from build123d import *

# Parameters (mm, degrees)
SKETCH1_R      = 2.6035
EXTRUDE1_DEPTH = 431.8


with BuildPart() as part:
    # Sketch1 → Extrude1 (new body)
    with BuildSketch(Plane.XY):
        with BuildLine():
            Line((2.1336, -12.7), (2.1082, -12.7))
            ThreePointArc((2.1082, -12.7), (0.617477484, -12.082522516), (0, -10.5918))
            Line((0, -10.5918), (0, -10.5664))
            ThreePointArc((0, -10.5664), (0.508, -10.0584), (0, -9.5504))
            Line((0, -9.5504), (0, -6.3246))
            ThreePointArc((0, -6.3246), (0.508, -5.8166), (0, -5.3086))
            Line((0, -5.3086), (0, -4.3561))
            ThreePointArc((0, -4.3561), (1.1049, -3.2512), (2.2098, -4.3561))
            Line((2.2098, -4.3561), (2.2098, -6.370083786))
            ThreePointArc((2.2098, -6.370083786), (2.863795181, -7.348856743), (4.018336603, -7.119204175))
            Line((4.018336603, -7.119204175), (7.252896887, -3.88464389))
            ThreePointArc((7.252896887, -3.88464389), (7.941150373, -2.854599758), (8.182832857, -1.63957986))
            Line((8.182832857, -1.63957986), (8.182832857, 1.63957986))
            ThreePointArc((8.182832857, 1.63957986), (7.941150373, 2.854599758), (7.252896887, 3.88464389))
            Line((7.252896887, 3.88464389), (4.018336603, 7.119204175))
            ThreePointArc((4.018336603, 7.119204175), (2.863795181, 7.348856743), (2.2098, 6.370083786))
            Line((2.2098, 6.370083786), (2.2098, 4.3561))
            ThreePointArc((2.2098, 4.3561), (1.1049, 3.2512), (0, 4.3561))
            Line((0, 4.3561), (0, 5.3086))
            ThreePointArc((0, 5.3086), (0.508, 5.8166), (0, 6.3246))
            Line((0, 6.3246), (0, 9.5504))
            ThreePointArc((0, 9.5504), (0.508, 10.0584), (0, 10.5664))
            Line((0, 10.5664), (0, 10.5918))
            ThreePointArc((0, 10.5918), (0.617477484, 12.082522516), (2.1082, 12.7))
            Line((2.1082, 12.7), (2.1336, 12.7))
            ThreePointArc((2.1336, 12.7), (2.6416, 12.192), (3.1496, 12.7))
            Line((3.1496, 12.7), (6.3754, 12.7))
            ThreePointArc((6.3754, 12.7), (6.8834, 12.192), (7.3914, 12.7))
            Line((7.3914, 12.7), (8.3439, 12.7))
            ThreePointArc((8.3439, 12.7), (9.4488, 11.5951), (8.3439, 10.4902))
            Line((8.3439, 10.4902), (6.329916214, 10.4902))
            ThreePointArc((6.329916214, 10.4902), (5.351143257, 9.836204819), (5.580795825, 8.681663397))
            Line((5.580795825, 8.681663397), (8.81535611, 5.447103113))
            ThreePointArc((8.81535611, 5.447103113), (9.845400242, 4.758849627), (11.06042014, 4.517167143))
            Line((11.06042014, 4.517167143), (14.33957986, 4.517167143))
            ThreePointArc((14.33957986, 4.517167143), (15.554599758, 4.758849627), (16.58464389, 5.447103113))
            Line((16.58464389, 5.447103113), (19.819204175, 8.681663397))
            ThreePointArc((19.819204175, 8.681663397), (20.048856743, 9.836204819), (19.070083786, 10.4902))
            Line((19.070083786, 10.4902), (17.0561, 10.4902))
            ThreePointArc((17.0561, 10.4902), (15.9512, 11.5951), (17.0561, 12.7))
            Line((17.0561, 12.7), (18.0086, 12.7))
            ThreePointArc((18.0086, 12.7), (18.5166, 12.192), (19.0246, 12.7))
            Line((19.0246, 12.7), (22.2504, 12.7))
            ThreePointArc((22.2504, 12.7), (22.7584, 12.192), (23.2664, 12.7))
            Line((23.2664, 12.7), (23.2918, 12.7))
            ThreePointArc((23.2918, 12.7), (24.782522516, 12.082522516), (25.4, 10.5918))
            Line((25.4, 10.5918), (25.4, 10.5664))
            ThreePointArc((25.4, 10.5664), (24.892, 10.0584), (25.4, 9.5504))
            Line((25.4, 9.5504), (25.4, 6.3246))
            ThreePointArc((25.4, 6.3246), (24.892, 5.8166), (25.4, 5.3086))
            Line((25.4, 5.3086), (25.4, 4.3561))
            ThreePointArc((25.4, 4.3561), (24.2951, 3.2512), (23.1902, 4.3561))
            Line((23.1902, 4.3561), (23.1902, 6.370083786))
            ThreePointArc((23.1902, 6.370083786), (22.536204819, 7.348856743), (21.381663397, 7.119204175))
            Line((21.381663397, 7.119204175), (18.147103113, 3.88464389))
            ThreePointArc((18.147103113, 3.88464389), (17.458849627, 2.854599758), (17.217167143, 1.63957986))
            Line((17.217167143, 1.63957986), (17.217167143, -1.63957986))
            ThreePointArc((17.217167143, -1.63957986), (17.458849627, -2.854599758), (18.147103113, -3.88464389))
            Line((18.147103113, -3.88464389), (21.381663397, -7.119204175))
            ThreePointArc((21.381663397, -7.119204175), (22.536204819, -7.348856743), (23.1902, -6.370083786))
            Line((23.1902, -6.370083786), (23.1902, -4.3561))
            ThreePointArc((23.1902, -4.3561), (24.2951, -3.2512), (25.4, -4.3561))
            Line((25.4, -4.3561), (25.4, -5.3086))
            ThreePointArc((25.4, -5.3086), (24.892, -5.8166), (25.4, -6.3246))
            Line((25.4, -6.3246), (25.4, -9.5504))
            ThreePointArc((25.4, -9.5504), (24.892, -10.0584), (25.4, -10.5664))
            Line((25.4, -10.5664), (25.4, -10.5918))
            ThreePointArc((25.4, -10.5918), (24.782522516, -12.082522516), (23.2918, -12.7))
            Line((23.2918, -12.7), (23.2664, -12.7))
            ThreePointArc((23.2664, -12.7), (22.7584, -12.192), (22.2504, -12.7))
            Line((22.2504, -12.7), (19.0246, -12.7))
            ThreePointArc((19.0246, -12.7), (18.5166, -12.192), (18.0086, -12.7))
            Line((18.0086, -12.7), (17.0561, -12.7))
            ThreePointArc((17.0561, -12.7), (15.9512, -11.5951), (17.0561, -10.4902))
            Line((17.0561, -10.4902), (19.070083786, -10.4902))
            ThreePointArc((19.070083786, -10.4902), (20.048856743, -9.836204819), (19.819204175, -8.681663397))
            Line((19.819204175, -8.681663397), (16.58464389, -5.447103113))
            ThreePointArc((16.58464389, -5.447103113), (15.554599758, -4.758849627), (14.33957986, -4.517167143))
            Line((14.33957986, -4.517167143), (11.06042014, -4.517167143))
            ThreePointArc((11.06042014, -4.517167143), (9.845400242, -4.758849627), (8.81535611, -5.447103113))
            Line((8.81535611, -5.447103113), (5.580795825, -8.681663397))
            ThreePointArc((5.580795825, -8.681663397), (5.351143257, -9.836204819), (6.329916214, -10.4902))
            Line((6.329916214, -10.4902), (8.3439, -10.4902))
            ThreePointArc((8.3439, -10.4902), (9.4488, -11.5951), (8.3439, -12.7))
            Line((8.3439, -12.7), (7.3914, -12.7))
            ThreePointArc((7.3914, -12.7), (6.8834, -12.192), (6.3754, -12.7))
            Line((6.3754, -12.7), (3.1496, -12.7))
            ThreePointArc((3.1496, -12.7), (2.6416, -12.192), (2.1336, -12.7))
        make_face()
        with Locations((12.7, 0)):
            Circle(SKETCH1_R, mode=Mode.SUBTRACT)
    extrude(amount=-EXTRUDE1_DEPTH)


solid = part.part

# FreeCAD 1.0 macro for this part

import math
import FreeCAD as App
import Part
import Sketcher
from FreeCAD import Vector
Q = App.Units.Quantity

doc = App.newDocument("Part")
body = doc.addObject("PartDesign::Body", "Body")

# Sketch on XY plane
sketch1 = body.newObject("Sketcher::SketchObject", "Sketch")
sketch1.AttachmentSupport = (doc.getObject("XY_Plane"), [""])
sketch1.MapMode = "FlatFace"
sketch1.addGeometry([
    Part.LineSegment(Vector(2.108, -12.7, 0), Vector(2.134, -12.7, 0)),  # 0
    Part.ArcOfCircle(Part.Circle(Vector(2.642, -12.7, 0), Vector(0, 0, 1), 0.508), math.radians(0), math.radians(180)),  # 1
    Part.LineSegment(Vector(3.15, -12.7, 0), Vector(6.375, -12.7, 0)),  # 2
    Part.ArcOfCircle(Part.Circle(Vector(6.883, -12.7, 0), Vector(0, 0, 1), 0.508), math.radians(0), math.radians(180)),  # 3
    Part.LineSegment(Vector(7.391, -12.7, 0), Vector(8.344, -12.7, 0)),  # 4
    Part.ArcOfCircle(Part.Circle(Vector(8.344, -11.595, 0), Vector(0, 0, 1), 1.105), math.radians(-90), math.radians(90)),  # 5
    Part.LineSegment(Vector(8.344, -10.49, 0), Vector(6.33, -10.49, 0)),  # 6
    Part.ArcOfCircle(Part.Circle(Vector(6.33, -9.431, 0), Vector(0, 0, 1), 1.059), math.radians(135), math.radians(270)),  # 7
    Part.LineSegment(Vector(5.581, -8.682, 0), Vector(8.815, -5.447, 0)),  # 8
    Part.ArcOfCircle(Part.Circle(Vector(11.06, -7.692, 0), Vector(0, 0, 1), 3.175), math.radians(90), math.radians(135)),  # 9
    Part.LineSegment(Vector(11.06, -4.517, 0), Vector(14.34, -4.517, 0)),  # 10
    Part.ArcOfCircle(Part.Circle(Vector(14.34, -7.692, 0), Vector(0, 0, 1), 3.175), math.radians(45), math.radians(90)),  # 11
    Part.LineSegment(Vector(16.585, -5.447, 0), Vector(19.819, -8.682, 0)),  # 12
    Part.ArcOfCircle(Part.Circle(Vector(19.07, -9.431, 0), Vector(0, 0, 1), 1.059), math.radians(-90), math.radians(45)),  # 13
    Part.LineSegment(Vector(19.07, -10.49, 0), Vector(17.056, -10.49, 0)),  # 14
    Part.ArcOfCircle(Part.Circle(Vector(17.056, -11.595, 0), Vector(0, 0, 1), 1.105), math.radians(90), math.radians(270)),  # 15
    Part.LineSegment(Vector(17.056, -12.7, 0), Vector(18.009, -12.7, 0)),  # 16
    Part.ArcOfCircle(Part.Circle(Vector(18.517, -12.7, 0), Vector(0, 0, 1), 0.508), math.radians(0), math.radians(180)),  # 17
    Part.LineSegment(Vector(19.025, -12.7, 0), Vector(22.25, -12.7, 0)),  # 18
    Part.ArcOfCircle(Part.Circle(Vector(22.758, -12.7, 0), Vector(0, 0, 1), 0.508), math.radians(0), math.radians(180)),  # 19
    Part.LineSegment(Vector(23.266, -12.7, 0), Vector(23.292, -12.7, 0)),  # 20
    Part.ArcOfCircle(Part.Circle(Vector(23.292, -10.592, 0), Vector(0, 0, 1), 2.108), math.radians(-90), math.radians(0)),  # 21
    Part.LineSegment(Vector(25.4, -10.592, 0), Vector(25.4, -10.566, 0)),  # 22
    Part.ArcOfCircle(Part.Circle(Vector(25.4, -10.058, 0), Vector(0, 0, 1), 0.508), math.radians(90), math.radians(270)),  # 23
    Part.LineSegment(Vector(25.4, -9.55, 0), Vector(25.4, -6.325, 0)),  # 24
    Part.ArcOfCircle(Part.Circle(Vector(25.4, -5.817, 0), Vector(0, 0, 1), 0.508), math.radians(90), math.radians(270)),  # 25
    Part.LineSegment(Vector(25.4, -5.309, 0), Vector(25.4, -4.356, 0)),  # 26
    Part.ArcOfCircle(Part.Circle(Vector(24.295, -4.356, 0), Vector(0, 0, 1), 1.105), math.radians(0), math.radians(180)),  # 27
    Part.LineSegment(Vector(23.19, -4.356, 0), Vector(23.19, -6.37, 0)),  # 28
    Part.ArcOfCircle(Part.Circle(Vector(22.131, -6.37, 0), Vector(0, 0, 1), 1.059), math.radians(-135), math.radians(0)),  # 29
    Part.LineSegment(Vector(21.382, -7.119, 0), Vector(18.147, -3.885, 0)),  # 30
    Part.ArcOfCircle(Part.Circle(Vector(20.392, -1.64, 0), Vector(0, 0, 1), 3.175), math.radians(180), math.radians(225)),  # 31
    Part.LineSegment(Vector(17.217, -1.64, 0), Vector(17.217, 1.64, 0)),  # 32
    Part.ArcOfCircle(Part.Circle(Vector(20.392, 1.64, 0), Vector(0, 0, 1), 3.175), math.radians(135), math.radians(180)),  # 33
    Part.LineSegment(Vector(18.147, 3.885, 0), Vector(21.382, 7.119, 0)),  # 34
    Part.ArcOfCircle(Part.Circle(Vector(22.131, 6.37, 0), Vector(0, 0, 1), 1.059), math.radians(0), math.radians(135)),  # 35
    Part.LineSegment(Vector(23.19, 6.37, 0), Vector(23.19, 4.356, 0)),  # 36
    Part.ArcOfCircle(Part.Circle(Vector(24.295, 4.356, 0), Vector(0, 0, 1), 1.105), math.radians(180), math.radians(360)),  # 37
    Part.LineSegment(Vector(25.4, 4.356, 0), Vector(25.4, 5.309, 0)),  # 38
    Part.ArcOfCircle(Part.Circle(Vector(25.4, 5.817, 0), Vector(0, 0, 1), 0.508), math.radians(90), math.radians(270)),  # 39
    Part.LineSegment(Vector(25.4, 6.325, 0), Vector(25.4, 9.55, 0)),  # 40
    Part.ArcOfCircle(Part.Circle(Vector(25.4, 10.058, 0), Vector(0, 0, 1), 0.508), math.radians(90), math.radians(270)),  # 41
    Part.LineSegment(Vector(25.4, 10.566, 0), Vector(25.4, 10.592, 0)),  # 42
    Part.ArcOfCircle(Part.Circle(Vector(23.292, 10.592, 0), Vector(0, 0, 1), 2.108), math.radians(0), math.radians(90)),  # 43
    Part.LineSegment(Vector(23.292, 12.7, 0), Vector(23.266, 12.7, 0)),  # 44
    Part.ArcOfCircle(Part.Circle(Vector(22.758, 12.7, 0), Vector(0, 0, 1), 0.508), math.radians(180), math.radians(360)),  # 45
    Part.LineSegment(Vector(22.25, 12.7, 0), Vector(19.025, 12.7, 0)),  # 46
    Part.ArcOfCircle(Part.Circle(Vector(18.517, 12.7, 0), Vector(0, 0, 1), 0.508), math.radians(180), math.radians(360)),  # 47
    Part.LineSegment(Vector(18.009, 12.7, 0), Vector(17.056, 12.7, 0)),  # 48
    Part.ArcOfCircle(Part.Circle(Vector(17.056, 11.595, 0), Vector(0, 0, 1), 1.105), math.radians(90), math.radians(270)),  # 49
    Part.LineSegment(Vector(17.056, 10.49, 0), Vector(19.07, 10.49, 0)),  # 50
    Part.ArcOfCircle(Part.Circle(Vector(19.07, 9.431, 0), Vector(0, 0, 1), 1.059), math.radians(-45), math.radians(90)),  # 51
    Part.LineSegment(Vector(19.819, 8.682, 0), Vector(16.585, 5.447, 0)),  # 52
    Part.ArcOfCircle(Part.Circle(Vector(14.34, 7.692, 0), Vector(0, 0, 1), 3.175), math.radians(-90), math.radians(-45)),  # 53
    Part.LineSegment(Vector(14.34, 4.517, 0), Vector(11.06, 4.517, 0)),  # 54
    Part.ArcOfCircle(Part.Circle(Vector(11.06, 7.692, 0), Vector(0, 0, 1), 3.175), math.radians(-135), math.radians(-90)),  # 55
    Part.LineSegment(Vector(8.815, 5.447, 0), Vector(5.581, 8.682, 0)),  # 56
    Part.ArcOfCircle(Part.Circle(Vector(6.33, 9.431, 0), Vector(0, 0, 1), 1.059), math.radians(90), math.radians(225)),  # 57
    Part.LineSegment(Vector(6.33, 10.49, 0), Vector(8.344, 10.49, 0)),  # 58
    Part.ArcOfCircle(Part.Circle(Vector(8.344, 11.595, 0), Vector(0, 0, 1), 1.105), math.radians(-90), math.radians(90)),  # 59
    Part.LineSegment(Vector(8.344, 12.7, 0), Vector(7.391, 12.7, 0)),  # 60
    Part.ArcOfCircle(Part.Circle(Vector(6.883, 12.7, 0), Vector(0, 0, 1), 0.508), math.radians(180), math.radians(360)),  # 61
    Part.LineSegment(Vector(6.375, 12.7, 0), Vector(3.15, 12.7, 0)),  # 62
    Part.ArcOfCircle(Part.Circle(Vector(2.642, 12.7, 0), Vector(0, 0, 1), 0.508), math.radians(180), math.radians(360)),  # 63
    Part.LineSegment(Vector(2.134, 12.7, 0), Vector(2.108, 12.7, 0)),  # 64
    Part.ArcOfCircle(Part.Circle(Vector(2.108, 10.592, 0), Vector(0, 0, 1), 2.108), math.radians(90), math.radians(180)),  # 65
    Part.LineSegment(Vector(0, 10.592, 0), Vector(0, 10.566, 0)),  # 66
    Part.ArcOfCircle(Part.Circle(Vector(0, 10.058, 0), Vector(0, 0, 1), 0.508), math.radians(-90), math.radians(90)),  # 67
    Part.LineSegment(Vector(0, 9.55, 0), Vector(0, 6.325, 0)),  # 68
    Part.ArcOfCircle(Part.Circle(Vector(0, 5.817, 0), Vector(0, 0, 1), 0.508), math.radians(-90), math.radians(90)),  # 69
    Part.LineSegment(Vector(0, 5.309, 0), Vector(0, 4.356, 0)),  # 70
    Part.ArcOfCircle(Part.Circle(Vector(1.105, 4.356, 0), Vector(0, 0, 1), 1.105), math.radians(180), math.radians(360)),  # 71
    Part.LineSegment(Vector(2.21, 4.356, 0), Vector(2.21, 6.37, 0)),  # 72
    Part.ArcOfCircle(Part.Circle(Vector(3.269, 6.37, 0), Vector(0, 0, 1), 1.059), math.radians(45), math.radians(180)),  # 73
    Part.LineSegment(Vector(4.018, 7.119, 0), Vector(7.253, 3.885, 0)),  # 74
    Part.ArcOfCircle(Part.Circle(Vector(5.008, 1.64, 0), Vector(0, 0, 1), 3.175), math.radians(0), math.radians(45)),  # 75
    Part.LineSegment(Vector(8.183, 1.64, 0), Vector(8.183, -1.64, 0)),  # 76
    Part.ArcOfCircle(Part.Circle(Vector(5.008, -1.64, 0), Vector(0, 0, 1), 3.175), math.radians(-45), math.radians(0)),  # 77
    Part.LineSegment(Vector(7.253, -3.885, 0), Vector(4.018, -7.119, 0)),  # 78
    Part.ArcOfCircle(Part.Circle(Vector(3.269, -6.37, 0), Vector(0, 0, 1), 1.059), math.radians(180), math.radians(315)),  # 79
    Part.LineSegment(Vector(2.21, -6.37, 0), Vector(2.21, -4.356, 0)),  # 80
    Part.ArcOfCircle(Part.Circle(Vector(1.105, -4.356, 0), Vector(0, 0, 1), 1.105), math.radians(0), math.radians(180)),  # 81
    Part.LineSegment(Vector(0, -4.356, 0), Vector(0, -5.309, 0)),  # 82
    Part.ArcOfCircle(Part.Circle(Vector(0, -5.817, 0), Vector(0, 0, 1), 0.508), math.radians(-90), math.radians(90)),  # 83
    Part.LineSegment(Vector(0, -6.325, 0), Vector(0, -9.55, 0)),  # 84
    Part.ArcOfCircle(Part.Circle(Vector(0, -10.058, 0), Vector(0, 0, 1), 0.508), math.radians(-90), math.radians(90)),  # 85
    Part.LineSegment(Vector(0, -10.566, 0), Vector(0, -10.592, 0)),  # 86
    Part.ArcOfCircle(Part.Circle(Vector(2.108, -10.592, 0), Vector(0, 0, 1), 2.108), math.radians(180), math.radians(270)),  # 87
    Part.Circle(Vector(12.7, 0, 0), Vector(0, 0, 1), 2.603),  # 88
], False)
sketch1.addConstraint([
    Sketcher.Constraint("Coincident", 0, 2, 1, 2),
    Sketcher.Constraint("Coincident", 1, 1, 2, 1),
    Sketcher.Constraint("Coincident", 2, 2, 3, 2),
    Sketcher.Constraint("Coincident", 3, 1, 4, 1),
    Sketcher.Constraint("Tangent", 4, 2, 5, 1),
    Sketcher.Constraint("Tangent", 5, 2, 6, 1),
    Sketcher.Constraint("Tangent", 6, 2, 7, 2),
    Sketcher.Constraint("Tangent", 7, 1, 8, 1),
    Sketcher.Constraint("Tangent", 8, 2, 9, 2),
    Sketcher.Constraint("Tangent", 9, 1, 10, 1),
    Sketcher.Constraint("Tangent", 10, 2, 11, 2),
    Sketcher.Constraint("Tangent", 11, 1, 12, 1),
    Sketcher.Constraint("Tangent", 12, 2, 13, 2),
    Sketcher.Constraint("Tangent", 13, 1, 14, 1),
    Sketcher.Constraint("Tangent", 14, 2, 15, 1),
    Sketcher.Constraint("Tangent", 15, 2, 16, 1),
    Sketcher.Constraint("Coincident", 16, 2, 17, 2),
    Sketcher.Constraint("Coincident", 17, 1, 18, 1),
    Sketcher.Constraint("Coincident", 18, 2, 19, 2),
    Sketcher.Constraint("Coincident", 19, 1, 20, 1),
    Sketcher.Constraint("Tangent", 20, 2, 21, 1),
    Sketcher.Constraint("Tangent", 21, 2, 22, 1),
    Sketcher.Constraint("Coincident", 22, 2, 23, 2),
    Sketcher.Constraint("Coincident", 23, 1, 24, 1),
    Sketcher.Constraint("Coincident", 24, 2, 25, 2),
    Sketcher.Constraint("Coincident", 25, 1, 26, 1),
    Sketcher.Constraint("Tangent", 26, 2, 27, 1),
    Sketcher.Constraint("Tangent", 27, 2, 28, 1),
    Sketcher.Constraint("Tangent", 28, 2, 29, 2),
    Sketcher.Constraint("Tangent", 29, 1, 30, 1),
    Sketcher.Constraint("Tangent", 30, 2, 31, 2),
    Sketcher.Constraint("Tangent", 31, 1, 32, 1),
    Sketcher.Constraint("Tangent", 32, 2, 33, 2),
    Sketcher.Constraint("Tangent", 33, 1, 34, 1),
    Sketcher.Constraint("Tangent", 34, 2, 35, 2),
    Sketcher.Constraint("Tangent", 35, 1, 36, 1),
    Sketcher.Constraint("Tangent", 36, 2, 37, 1),
    Sketcher.Constraint("Tangent", 37, 2, 38, 1),
    Sketcher.Constraint("Coincident", 38, 2, 39, 2),
    Sketcher.Constraint("Coincident", 39, 1, 40, 1),
    Sketcher.Constraint("Coincident", 40, 2, 41, 2),
    Sketcher.Constraint("Coincident", 41, 1, 42, 1),
    Sketcher.Constraint("Tangent", 42, 2, 43, 1),
    Sketcher.Constraint("Tangent", 43, 2, 44, 1),
    Sketcher.Constraint("Coincident", 44, 2, 45, 2),
    Sketcher.Constraint("Coincident", 45, 1, 46, 1),
    Sketcher.Constraint("Coincident", 46, 2, 47, 2),
    Sketcher.Constraint("Coincident", 47, 1, 48, 1),
    Sketcher.Constraint("Tangent", 48, 2, 49, 1),
    Sketcher.Constraint("Tangent", 49, 2, 50, 1),
    Sketcher.Constraint("Tangent", 50, 2, 51, 2),
    Sketcher.Constraint("Tangent", 51, 1, 52, 1),
    Sketcher.Constraint("Tangent", 52, 2, 53, 2),
    Sketcher.Constraint("Tangent", 53, 1, 54, 1),
    Sketcher.Constraint("Tangent", 54, 2, 55, 2),
    Sketcher.Constraint("Tangent", 55, 1, 56, 1),
    Sketcher.Constraint("Tangent", 56, 2, 57, 2),
    Sketcher.Constraint("Tangent", 57, 1, 58, 1),
    Sketcher.Constraint("Tangent", 58, 2, 59, 1),
    Sketcher.Constraint("Tangent", 59, 2, 60, 1),
    Sketcher.Constraint("Coincident", 60, 2, 61, 2),
    Sketcher.Constraint("Coincident", 61, 1, 62, 1),
    Sketcher.Constraint("Coincident", 62, 2, 63, 2),
    Sketcher.Constraint("Coincident", 63, 1, 64, 1),
    Sketcher.Constraint("Tangent", 64, 2, 65, 1),
    Sketcher.Constraint("Tangent", 65, 2, 66, 1),
    Sketcher.Constraint("Coincident", 66, 2, 67, 2),
    Sketcher.Constraint("Coincident", 67, 1, 68, 1),
    Sketcher.Constraint("Coincident", 68, 2, 69, 2),
    Sketcher.Constraint("Coincident", 69, 1, 70, 1),
    Sketcher.Constraint("Tangent", 70, 2, 71, 1),
    Sketcher.Constraint("Tangent", 71, 2, 72, 1),
    Sketcher.Constraint("Tangent", 72, 2, 73, 2),
    Sketcher.Constraint("Tangent", 73, 1, 74, 1),
    Sketcher.Constraint("Tangent", 74, 2, 75, 2),
    Sketcher.Constraint("Tangent", 75, 1, 76, 1),
    Sketcher.Constraint("Tangent", 76, 2, 77, 2),
    Sketcher.Constraint("Tangent", 77, 1, 78, 1),
    Sketcher.Constraint("Tangent", 78, 2, 79, 2),
    Sketcher.Constraint("Tangent", 79, 1, 80, 1),
    Sketcher.Constraint("Tangent", 80, 2, 81, 1),
    Sketcher.Constraint("Tangent", 81, 2, 82, 1),
    Sketcher.Constraint("Coincident", 82, 2, 83, 2),
    Sketcher.Constraint("Coincident", 83, 1, 84, 1),
    Sketcher.Constraint("Coincident", 84, 2, 85, 2),
    Sketcher.Constraint("Coincident", 85, 1, 86, 1),
    Sketcher.Constraint("Tangent", 86, 2, 87, 1),
    Sketcher.Constraint("Tangent", 87, 2, 0, 1),
    Sketcher.Constraint("Horizontal", 0),
    Sketcher.Constraint("Horizontal", 2),
    Sketcher.Constraint("Horizontal", 4),
    Sketcher.Constraint("Horizontal", 6),
    Sketcher.Constraint("Horizontal", 10),
    Sketcher.Constraint("Horizontal", 14),
    Sketcher.Constraint("Horizontal", 16),
    Sketcher.Constraint("Horizontal", 18),
    Sketcher.Constraint("Horizontal", 20),
    Sketcher.Constraint("Vertical", 22),
    Sketcher.Constraint("Vertical", 24),
    Sketcher.Constraint("Vertical", 26),
    Sketcher.Constraint("Vertical", 28),
    Sketcher.Constraint("Vertical", 32),
    Sketcher.Constraint("Vertical", 36),
    Sketcher.Constraint("Vertical", 38),
    Sketcher.Constraint("Vertical", 40),
    Sketcher.Constraint("Vertical", 42),
    Sketcher.Constraint("Horizontal", 44),
    Sketcher.Constraint("Horizontal", 46),
    Sketcher.Constraint("Horizontal", 48),
    Sketcher.Constraint("Horizontal", 50),
    Sketcher.Constraint("Horizontal", 54),
    Sketcher.Constraint("Horizontal", 58),
    Sketcher.Constraint("Horizontal", 60),
    Sketcher.Constraint("Horizontal", 62),
    Sketcher.Constraint("Horizontal", 64),
    Sketcher.Constraint("Vertical", 66),
    Sketcher.Constraint("Vertical", 68),
    Sketcher.Constraint("Vertical", 70),
    Sketcher.Constraint("Vertical", 72),
    Sketcher.Constraint("Vertical", 76),
    Sketcher.Constraint("Vertical", 80),
    Sketcher.Constraint("Vertical", 82),
    Sketcher.Constraint("Vertical", 84),
    Sketcher.Constraint("Vertical", 86),
    Sketcher.Constraint("Equal", 1, 3),
    Sketcher.Constraint("Equal", 9, 11),
    Sketcher.Constraint("Equal", 7, 13),
    Sketcher.Constraint("Equal", 5, 15),
    Sketcher.Constraint("Equal", 3, 17),
    Sketcher.Constraint("Equal", 17, 19),
    Sketcher.Constraint("Equal", 19, 23),
    Sketcher.Constraint("Equal", 23, 25),
    Sketcher.Constraint("Equal", 15, 27),
    Sketcher.Constraint("Equal", 13, 29),
    Sketcher.Constraint("Equal", 11, 31),
    Sketcher.Constraint("Equal", 31, 33),
    Sketcher.Constraint("Equal", 29, 35),
    Sketcher.Constraint("Equal", 27, 37),
    Sketcher.Constraint("Equal", 25, 39),
    Sketcher.Constraint("Equal", 39, 41),
    Sketcher.Constraint("Equal", 21, 43),
    Sketcher.Constraint("Equal", 41, 45),
    Sketcher.Constraint("Equal", 45, 47),
    Sketcher.Constraint("Equal", 37, 49),
    Sketcher.Constraint("Equal", 35, 51),
    Sketcher.Constraint("Equal", 33, 53),
    Sketcher.Constraint("Equal", 53, 55),
    Sketcher.Constraint("Equal", 51, 57),
    Sketcher.Constraint("Equal", 49, 59),
    Sketcher.Constraint("Equal", 47, 61),
    Sketcher.Constraint("Equal", 61, 63),
    Sketcher.Constraint("Equal", 43, 65),
    Sketcher.Constraint("Equal", 63, 67),
    Sketcher.Constraint("Equal", 67, 69),
    Sketcher.Constraint("Equal", 59, 71),
    Sketcher.Constraint("Equal", 57, 73),
    Sketcher.Constraint("Equal", 55, 75),
    Sketcher.Constraint("Equal", 75, 77),
    Sketcher.Constraint("Equal", 73, 79),
    Sketcher.Constraint("Equal", 71, 81),
    Sketcher.Constraint("Equal", 69, 83),
    Sketcher.Constraint("Equal", 83, 85),
    Sketcher.Constraint("Equal", 65, 87),
    Sketcher.Constraint("Symmetric", 69, 3, 83, 3, -1, 1),
    Sketcher.Constraint("Symmetric", 67, 3, 85, 3, -1, 1),
    Sketcher.Constraint("Symmetric", 70, 2, 81, 2, -1, 1),
    Sketcher.Constraint("Symmetric", 65, 2, 86, 2, -1, 1),
    Sketcher.Constraint("Symmetric", 29, 3, 35, 3, -1),
    Sketcher.Constraint("Symmetric", 25, 3, 39, 3, -1),
    Sketcher.Constraint("Symmetric", 23, 3, 41, 3, -1),
    Sketcher.Constraint("Symmetric", 21, 3, 43, 3, -1),
    Sketcher.Constraint("Symmetric", 19, 3, 45, 3, -1),
    Sketcher.Constraint("Symmetric", 17, 3, 47, 3, -1),
    Sketcher.Constraint("Symmetric", 15, 3, 49, 3, -1),
    Sketcher.Constraint("Symmetric", 11, 3, 53, 3, -1),
    Sketcher.Constraint("Symmetric", 7, 3, 57, 3, -1),
    Sketcher.Constraint("Symmetric", 3, 3, 61, 3, -1),
    Sketcher.Constraint("Symmetric", 1, 3, 63, 3, -1),
    Sketcher.Constraint("Symmetric", 73, 3, 79, 3, -1),
    Sketcher.Constraint("PointOnObject", 67, 3, -2),
    Sketcher.Constraint("PointOnObject", 69, 3, -2),
    Sketcher.Constraint("PointOnObject", 88, 3, -1),
    Sketcher.Constraint("PointOnObject", 65, 2, -2),
    Sketcher.Constraint("PointOnObject", 67, 1, -2),
    Sketcher.Constraint("PointOnObject", 83, 1, -2),
    Sketcher.Constraint("Perpendicular", 8, 12),
    Sketcher.Constraint("Parallel", 12, 30),
    Sketcher.Constraint("Perpendicular", 30, 34),
    Sketcher.Constraint("Parallel", 34, 52),
    Sketcher.Constraint("Perpendicular", 52, 56),
    Sketcher.Constraint("Parallel", 56, 74),
    Sketcher.Constraint("Perpendicular", 74, 78),
    Sketcher.Constraint("Horizontal", 1, 3, 3, 3),
    Sketcher.Constraint("Horizontal", 7, 3, 13, 3),
    Sketcher.Constraint("Horizontal", 3, 3, 17, 3),
    Sketcher.Constraint("Horizontal", 17, 3, 19, 3),
    Sketcher.Constraint("Horizontal", 43, 3, 65, 3),
    Sketcher.Constraint("Horizontal", 41, 3, 67, 3),
    Sketcher.Constraint("Horizontal", 39, 3, 69, 3),
    Sketcher.Constraint("Horizontal", 37, 3, 71, 3),
    Sketcher.Constraint("Horizontal", 35, 3, 73, 3),
    Sketcher.Constraint("Horizontal", 33, 3, 75, 3),
    Sketcher.Constraint("Horizontal", 31, 3, 77, 3),
    Sketcher.Constraint("Horizontal", 27, 3, 81, 3),
    Sketcher.Constraint("Horizontal", 19, 3, 0, 2),
    Sketcher.Constraint("Horizontal", 0, 2, 1, 1),
    Sketcher.Constraint("Horizontal", 2, 2, 3, 1),
    Sketcher.Constraint("Horizontal", 16, 2, 17, 1),
    Sketcher.Constraint("Horizontal", 44, 2, 45, 1),
    Sketcher.Constraint("Horizontal", 60, 2, 61, 1),
    Sketcher.Constraint("Vertical", 23, 3, 25, 3),
    Sketcher.Constraint("Vertical", 5, 3, 59, 3),
    Sketcher.Constraint("Vertical", 41, 3, 21, 2),
    Sketcher.Constraint("Vertical", 22, 2, 23, 1),
    Sketcher.Constraint("Vertical", 24, 2, 25, 1),
    Sketcher.Constraint("Vertical", 38, 2, 39, 1),
    Sketcher.Constraint("Equal", 6, 14),
    Sketcher.Constraint("Equal", 4, 16),
    Sketcher.Constraint("Equal", 2, 18),
    Sketcher.Constraint("Equal", 0, 20),
    Sketcher.Constraint("Equal", 64, 22),
    Sketcher.Constraint("Equal", 62, 24),
    Sketcher.Constraint("Equal", 60, 26),
    Sketcher.Constraint("Equal", 58, 28),
    Sketcher.Constraint("Equal", 54, 32),
    Sketcher.Constraint("Equal", 12, 30),
    Sketcher.Constraint("Radius", 1, Q("0.02 in")),
    Sketcher.Constraint("Diameter", 88, Q("0.205 in")),
    Sketcher.Constraint("DistanceX", -1, 1, 23, 3, Q("1 in")),
    Sketcher.Constraint("Radius", 9, Q("0.125 in")),
    Sketcher.Constraint("Radius", 21, Q("0.083 in")),
    Sketcher.Constraint("DistanceX", -1, 1, 88, 3, Q("0.5 in")),
    Sketcher.Constraint("Radius", 5, Q("0.0435 in")),
    Sketcher.Constraint("DistanceX", 0, 1, 0, 2, Q("0.001 in")),
    Sketcher.Constraint("DistanceX", 2, 1, 2, 2, Q("0.127 in")),
    Sketcher.Constraint("DistanceX", 4, 1, 4, 2, Q("0.0375 in")),
    Sketcher.Constraint("Radius", 7, Q("1.059416 mm")),
    Sketcher.Constraint("DistanceX", 10, 1, 10, 2, Q("3.27916 mm")),
    Sketcher.Constraint("Distance", 8, Q("4.574359 mm")),
])
pad1 = body.newObject("PartDesign::Pad", "Pad")
pad1.Profile = sketch1
pad1.Length = Q("17 in")
pad1.Reversed = True

doc.recompute()
